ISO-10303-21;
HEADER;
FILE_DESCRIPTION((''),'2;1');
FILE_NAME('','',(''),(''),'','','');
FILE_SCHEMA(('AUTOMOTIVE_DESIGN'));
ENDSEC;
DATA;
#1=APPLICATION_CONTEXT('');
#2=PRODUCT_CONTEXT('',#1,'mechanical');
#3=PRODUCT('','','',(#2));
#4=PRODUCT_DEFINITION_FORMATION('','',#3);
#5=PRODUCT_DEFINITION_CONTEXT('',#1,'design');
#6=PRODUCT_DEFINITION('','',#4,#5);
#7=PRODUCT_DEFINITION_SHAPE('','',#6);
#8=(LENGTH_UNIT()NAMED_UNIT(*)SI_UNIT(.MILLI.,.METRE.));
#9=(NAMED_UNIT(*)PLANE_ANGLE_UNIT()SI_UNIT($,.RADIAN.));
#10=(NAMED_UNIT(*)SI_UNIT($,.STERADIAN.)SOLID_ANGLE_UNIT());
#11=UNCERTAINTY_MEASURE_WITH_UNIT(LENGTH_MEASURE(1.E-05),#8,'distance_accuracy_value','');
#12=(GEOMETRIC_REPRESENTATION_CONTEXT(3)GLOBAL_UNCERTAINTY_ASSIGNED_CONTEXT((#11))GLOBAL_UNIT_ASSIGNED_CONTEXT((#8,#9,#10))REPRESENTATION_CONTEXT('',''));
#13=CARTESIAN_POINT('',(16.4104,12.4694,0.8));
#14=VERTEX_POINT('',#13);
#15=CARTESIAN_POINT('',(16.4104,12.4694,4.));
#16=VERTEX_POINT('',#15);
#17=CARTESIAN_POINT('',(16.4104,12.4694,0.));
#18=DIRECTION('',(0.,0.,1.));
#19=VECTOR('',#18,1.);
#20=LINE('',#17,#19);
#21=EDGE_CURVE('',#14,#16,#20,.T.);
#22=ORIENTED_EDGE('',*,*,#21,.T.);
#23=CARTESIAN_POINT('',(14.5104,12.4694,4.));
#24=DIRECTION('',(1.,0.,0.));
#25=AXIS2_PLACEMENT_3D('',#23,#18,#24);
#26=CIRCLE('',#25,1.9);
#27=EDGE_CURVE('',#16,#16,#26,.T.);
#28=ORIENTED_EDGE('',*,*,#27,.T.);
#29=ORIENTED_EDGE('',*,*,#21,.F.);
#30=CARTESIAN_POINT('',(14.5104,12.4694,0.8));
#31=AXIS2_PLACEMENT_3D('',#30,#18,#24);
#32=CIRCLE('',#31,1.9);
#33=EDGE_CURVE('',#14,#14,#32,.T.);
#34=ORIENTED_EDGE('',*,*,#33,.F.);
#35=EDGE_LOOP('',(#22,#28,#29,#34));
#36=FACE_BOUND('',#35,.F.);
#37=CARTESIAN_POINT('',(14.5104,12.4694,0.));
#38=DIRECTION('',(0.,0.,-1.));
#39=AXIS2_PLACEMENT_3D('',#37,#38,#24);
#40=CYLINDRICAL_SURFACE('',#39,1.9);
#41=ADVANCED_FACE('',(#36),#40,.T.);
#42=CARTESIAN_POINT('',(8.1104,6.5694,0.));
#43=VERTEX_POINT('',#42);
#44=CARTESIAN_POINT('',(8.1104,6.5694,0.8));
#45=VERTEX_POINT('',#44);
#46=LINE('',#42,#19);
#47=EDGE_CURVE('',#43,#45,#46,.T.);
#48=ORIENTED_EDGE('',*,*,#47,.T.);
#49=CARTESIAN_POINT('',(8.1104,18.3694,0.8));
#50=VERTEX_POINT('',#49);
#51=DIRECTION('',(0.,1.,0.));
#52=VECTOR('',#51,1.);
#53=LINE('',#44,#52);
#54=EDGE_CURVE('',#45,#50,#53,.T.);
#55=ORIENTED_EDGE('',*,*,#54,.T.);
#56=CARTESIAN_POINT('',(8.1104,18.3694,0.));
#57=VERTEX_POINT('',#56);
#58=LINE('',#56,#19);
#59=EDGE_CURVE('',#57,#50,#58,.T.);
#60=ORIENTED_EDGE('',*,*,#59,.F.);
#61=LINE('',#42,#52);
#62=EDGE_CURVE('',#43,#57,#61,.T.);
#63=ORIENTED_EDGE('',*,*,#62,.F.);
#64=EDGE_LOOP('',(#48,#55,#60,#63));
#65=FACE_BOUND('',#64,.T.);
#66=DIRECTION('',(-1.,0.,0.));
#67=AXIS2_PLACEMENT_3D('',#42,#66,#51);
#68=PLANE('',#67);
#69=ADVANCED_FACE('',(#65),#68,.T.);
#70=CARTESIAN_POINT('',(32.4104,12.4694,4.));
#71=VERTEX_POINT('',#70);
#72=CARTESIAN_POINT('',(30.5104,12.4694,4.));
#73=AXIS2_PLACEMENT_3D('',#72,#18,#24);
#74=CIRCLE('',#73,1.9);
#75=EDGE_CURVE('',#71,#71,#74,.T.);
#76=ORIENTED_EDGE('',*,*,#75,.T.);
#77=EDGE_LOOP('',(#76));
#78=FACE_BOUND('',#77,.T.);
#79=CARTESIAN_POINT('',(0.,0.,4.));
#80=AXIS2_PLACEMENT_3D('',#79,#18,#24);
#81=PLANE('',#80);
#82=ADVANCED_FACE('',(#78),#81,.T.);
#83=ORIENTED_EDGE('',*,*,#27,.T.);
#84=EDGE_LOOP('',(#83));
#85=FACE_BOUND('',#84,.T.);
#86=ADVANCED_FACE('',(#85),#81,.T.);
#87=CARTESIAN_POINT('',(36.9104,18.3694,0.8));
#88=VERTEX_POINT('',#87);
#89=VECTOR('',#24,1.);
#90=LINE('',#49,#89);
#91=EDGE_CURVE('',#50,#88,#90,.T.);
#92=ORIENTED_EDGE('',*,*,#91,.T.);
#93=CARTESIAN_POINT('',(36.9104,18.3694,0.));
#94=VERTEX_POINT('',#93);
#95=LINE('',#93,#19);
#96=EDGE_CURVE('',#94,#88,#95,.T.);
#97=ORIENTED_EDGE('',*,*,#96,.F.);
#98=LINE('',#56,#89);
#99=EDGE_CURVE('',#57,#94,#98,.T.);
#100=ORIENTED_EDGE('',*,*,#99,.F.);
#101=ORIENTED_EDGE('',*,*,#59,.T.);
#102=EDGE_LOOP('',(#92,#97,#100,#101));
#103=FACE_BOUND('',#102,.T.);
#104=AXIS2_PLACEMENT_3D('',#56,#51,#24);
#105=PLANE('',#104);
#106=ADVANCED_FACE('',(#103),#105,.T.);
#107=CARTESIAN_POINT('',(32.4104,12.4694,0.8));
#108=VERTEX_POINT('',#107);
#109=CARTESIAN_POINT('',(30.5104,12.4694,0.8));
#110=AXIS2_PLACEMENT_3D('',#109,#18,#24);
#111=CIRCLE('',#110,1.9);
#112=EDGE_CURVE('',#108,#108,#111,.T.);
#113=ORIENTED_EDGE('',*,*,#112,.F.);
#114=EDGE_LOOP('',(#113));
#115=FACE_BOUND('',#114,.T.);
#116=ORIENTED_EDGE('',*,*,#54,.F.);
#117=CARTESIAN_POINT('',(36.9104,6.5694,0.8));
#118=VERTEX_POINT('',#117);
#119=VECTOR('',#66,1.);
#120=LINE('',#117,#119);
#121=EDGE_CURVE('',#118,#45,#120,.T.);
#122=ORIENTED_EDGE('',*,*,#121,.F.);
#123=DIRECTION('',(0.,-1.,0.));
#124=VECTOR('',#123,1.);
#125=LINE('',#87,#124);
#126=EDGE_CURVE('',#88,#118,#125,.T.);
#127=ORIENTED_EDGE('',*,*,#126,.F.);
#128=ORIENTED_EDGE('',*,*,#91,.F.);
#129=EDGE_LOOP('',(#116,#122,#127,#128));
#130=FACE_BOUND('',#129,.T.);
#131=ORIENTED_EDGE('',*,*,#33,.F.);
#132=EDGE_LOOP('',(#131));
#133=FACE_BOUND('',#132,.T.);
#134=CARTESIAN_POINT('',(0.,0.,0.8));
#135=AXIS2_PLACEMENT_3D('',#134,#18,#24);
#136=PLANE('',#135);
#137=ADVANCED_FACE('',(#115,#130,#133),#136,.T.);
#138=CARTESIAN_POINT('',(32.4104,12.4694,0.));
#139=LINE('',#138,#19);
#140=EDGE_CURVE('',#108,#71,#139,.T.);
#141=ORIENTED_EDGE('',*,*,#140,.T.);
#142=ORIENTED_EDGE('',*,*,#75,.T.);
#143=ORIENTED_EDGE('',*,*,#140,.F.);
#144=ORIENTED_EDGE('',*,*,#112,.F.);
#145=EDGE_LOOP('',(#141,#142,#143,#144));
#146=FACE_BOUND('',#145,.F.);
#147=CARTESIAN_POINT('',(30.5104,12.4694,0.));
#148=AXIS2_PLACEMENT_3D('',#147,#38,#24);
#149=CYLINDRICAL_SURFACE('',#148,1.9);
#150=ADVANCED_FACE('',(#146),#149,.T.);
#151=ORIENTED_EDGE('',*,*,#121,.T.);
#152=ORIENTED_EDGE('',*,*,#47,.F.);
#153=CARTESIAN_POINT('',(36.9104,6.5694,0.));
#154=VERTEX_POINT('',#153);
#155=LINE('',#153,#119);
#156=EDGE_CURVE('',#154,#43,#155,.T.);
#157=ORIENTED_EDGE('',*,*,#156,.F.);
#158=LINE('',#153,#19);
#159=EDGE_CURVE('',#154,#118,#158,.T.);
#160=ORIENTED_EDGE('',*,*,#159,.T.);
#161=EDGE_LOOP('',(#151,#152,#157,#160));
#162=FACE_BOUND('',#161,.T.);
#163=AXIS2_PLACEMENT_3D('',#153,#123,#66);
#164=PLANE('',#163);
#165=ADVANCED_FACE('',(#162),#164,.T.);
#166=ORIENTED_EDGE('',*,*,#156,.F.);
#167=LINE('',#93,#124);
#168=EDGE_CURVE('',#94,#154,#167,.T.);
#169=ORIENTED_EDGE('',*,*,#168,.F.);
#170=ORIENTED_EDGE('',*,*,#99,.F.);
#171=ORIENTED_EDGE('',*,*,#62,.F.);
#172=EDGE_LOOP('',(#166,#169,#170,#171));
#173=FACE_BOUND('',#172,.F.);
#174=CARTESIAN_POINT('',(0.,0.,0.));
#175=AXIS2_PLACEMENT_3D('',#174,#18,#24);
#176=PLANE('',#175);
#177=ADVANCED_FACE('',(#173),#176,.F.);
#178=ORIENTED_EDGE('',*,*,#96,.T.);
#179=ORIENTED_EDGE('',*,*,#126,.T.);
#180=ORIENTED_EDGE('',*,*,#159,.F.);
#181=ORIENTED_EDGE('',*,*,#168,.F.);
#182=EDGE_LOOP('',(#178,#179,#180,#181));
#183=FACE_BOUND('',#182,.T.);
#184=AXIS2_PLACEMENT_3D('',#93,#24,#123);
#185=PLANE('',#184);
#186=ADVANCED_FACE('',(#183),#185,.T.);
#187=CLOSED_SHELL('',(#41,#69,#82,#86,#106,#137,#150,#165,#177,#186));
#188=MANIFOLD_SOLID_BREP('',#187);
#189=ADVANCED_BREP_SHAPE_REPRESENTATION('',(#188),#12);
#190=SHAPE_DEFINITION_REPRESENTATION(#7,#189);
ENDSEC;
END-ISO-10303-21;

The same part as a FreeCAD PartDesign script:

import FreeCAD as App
import Part
import Sketcher

V = App.Vector
Q = App.Units.Quantity

doc = App.newDocument("Part")
body = doc.addObject("PartDesign::Body", "Body")

sketch1 = doc.addObject("Sketcher::SketchObject", "Sketch")
body.addObject(sketch1)
sketch1.AttachmentSupport = (doc.XY_Plane, [""])
sketch1.MapMode = "FlatFace"
sketch1.addGeometry(Part.LineSegment(V(8.1104, 6.5694, 0), V(36.9104, 6.5694, 0)), False)
sketch1.addGeometry(Part.LineSegment(V(36.9104, 6.5694, 0), V(36.9104, 18.3694, 0)), False)
sketch1.addGeometry(Part.LineSegment(V(36.9104, 18.3694, 0), V(8.1104, 18.3694, 0)), False)
sketch1.addGeometry(Part.LineSegment(V(8.1104, 18.3694, 0), V(8.1104, 6.5694, 0)), False)
sketch1.addGeometry(Part.Circle(V(14.5104, 12.4694, 0), V(0, 0, 1), 1.9), False)
sketch1.addGeometry(Part.Circle(V(30.5104, 12.4694, 0), V(0, 0, 1), 1.9), False)
sketch1.addConstraint(Sketcher.Constraint("Coincident", 0, 2, 1, 1))
sketch1.addConstraint(Sketcher.Constraint("Coincident", 1, 2, 2, 1))
sketch1.addConstraint(Sketcher.Constraint("Coincident", 2, 2, 3, 1))
sketch1.addConstraint(Sketcher.Constraint("Coincident", 3, 2, 0, 1))
sketch1.addConstraint(Sketcher.Constraint("Horizontal", 0))
sketch1.addConstraint(Sketcher.Constraint("Vertical", 1))
sketch1.addConstraint(Sketcher.Constraint("Horizontal", 2))
sketch1.addConstraint(Sketcher.Constraint("Vertical", 3))
sketch1.addConstraint(Sketcher.Constraint("Equal", 4, 5))
sketch1.addConstraint(Sketcher.Constraint("Horizontal", 4, 3, 5, 3))
sketch1.addConstraint(Sketcher.Constraint("Diameter", 4, Q("3.8 mm")))
sketch1.addConstraint(Sketcher.Constraint("DistanceX", 4, 3, 5, 3, Q("16 mm")))
sketch1.addConstraint(Sketcher.Constraint("DistanceX", 0, 1, 0, 2, Q("28.8 mm")))
sketch1.addConstraint(Sketcher.Constraint("DistanceY", 1, 1, 1, 2, Q("11.8 mm")))
sketch1.addConstraint(Sketcher.Constraint("DistanceX", 5, 3, 0, 2, Q("6.4 mm")))
sketch1.addConstraint(Sketcher.Constraint("DistanceY", 0, 2, 5, 3, Q("5.9 mm")))
sketch1.addConstraint(Sketcher.Constraint("DistanceX", -1, 1, 4, 3, Q("14.5104 mm")))
sketch1.addConstraint(Sketcher.Constraint("DistanceY", -1, 1, 4, 3, Q("12.4694 mm")))
pad1 = doc.addObject("PartDesign::Pad", "Pad")
body.addObject(pad1)
pad1.Profile = sketch1
pad1.Length = 0.8

sketch2 = doc.addObject("Sketcher::SketchObject", "Sketch001")
body.addObject(sketch2)
sketch2.AttachmentSupport = (doc.XY_Plane, [""])
sketch2.MapMode = "FlatFace"
sketch2.addGeometry(Part.Circle(V(14.5104, 12.4694, 0), V(0, 0, 1), 1.9), False)
sketch2.addGeometry(Part.Circle(V(30.5104, 12.4694, 0), V(0, 0, 1), 1.9), False)
sketch2.addConstraint(Sketcher.Constraint("Equal", 0, 1))
sketch2.addConstraint(Sketcher.Constraint("Horizontal", 0, 3, 1, 3))
sketch2.addConstraint(Sketcher.Constraint("Diameter", 0, Q("3.8 mm")))
sketch2.addConstraint(Sketcher.Constraint("DistanceX", 0, 3, 1, 3, Q("16 mm")))
sketch2.addConstraint(Sketcher.Constraint("DistanceX", -1, 1, 0, 3, Q("14.5104 mm")))
sketch2.addConstraint(Sketcher.Constraint("DistanceY", -1, 1, 0, 3, Q("12.4694 mm")))
pad2 = doc.addObject("PartDesign::Pad", "Pad001")
body.addObject(pad2)
pad2.Profile = sketch2
pad2.Length = 4

doc.recompute()
